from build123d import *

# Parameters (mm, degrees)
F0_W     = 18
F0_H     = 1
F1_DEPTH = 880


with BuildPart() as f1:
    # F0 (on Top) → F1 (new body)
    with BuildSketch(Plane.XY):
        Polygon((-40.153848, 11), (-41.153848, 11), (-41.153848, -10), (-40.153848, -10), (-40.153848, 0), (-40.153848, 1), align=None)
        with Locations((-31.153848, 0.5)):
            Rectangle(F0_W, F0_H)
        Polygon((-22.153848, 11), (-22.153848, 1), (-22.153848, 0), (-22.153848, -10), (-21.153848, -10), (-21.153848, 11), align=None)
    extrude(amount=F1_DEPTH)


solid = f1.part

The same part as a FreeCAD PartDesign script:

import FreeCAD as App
import Part
import Sketcher
Q = App.Units.Quantity


def add_polygon(sketch, points):
    """Adds a closed chain of lines whose ends are joined by coincident constraints."""
    first, n = sketch.GeometryCount, len(points)
    for a, b in zip(points, points[1:] + points[:1]):
        sketch.addGeometry(Part.LineSegment(App.Vector(*a, 0), App.Vector(*b, 0)), False)
    for i in range(n):
        sketch.addConstraint(Sketcher.Constraint("Coincident", first + i, 2, first + (i + 1) % n, 1))

doc = App.newDocument("Part")
params = doc.addObject("Spreadsheet::Sheet", "Params")
for row, (alias, value) in enumerate([
    ("sketch1_width", "1 mm"),
    ("sketch1_width2", "18 mm"),
    ("sketch1_height", "21 mm"),
    ("sketch1_height2", "10 mm"),
    ("pad1_length", "880 mm"),
], start=1):
    params.set(f"A{row}", alias)
    params.set(f"B{row}", "=" + value)
    params.setAlias(f"B{row}", alias)

body = doc.addObject("PartDesign::Body", "Body")

sketch1 = doc.addObject("Sketcher::SketchObject", "Sketch")
body.addObject(sketch1)
sketch1.AttachmentSupport = (doc.XY_Plane, [""])
sketch1.MapMode = "FlatFace"
add_polygon(sketch1, [(-40.2, 11), (-41.2, 11), (-41.2, -10), (-40.2, -10), (-40.2, 0), (-22.2, 0), (-22.2, -10), (-21.2, -10), (-21.2, 11), (-22.2, 11), (-22.2, 1), (-40.2, 1)])
sketch1.addConstraint([
    Sketcher.Constraint("Horizontal", 0),
    Sketcher.Constraint("Vertical", 1),
    Sketcher.Constraint("Horizontal", 2),
    Sketcher.Constraint("Vertical", 3),
    Sketcher.Constraint("Horizontal", 4),
    Sketcher.Constraint("Vertical", 5),
    Sketcher.Constraint("Horizontal", 6),
    Sketcher.Constraint("Vertical", 7),
    Sketcher.Constraint("Horizontal", 8),
    Sketcher.Constraint("Vertical", 9),
    Sketcher.Constraint("Horizontal", 10),
    Sketcher.Constraint("Vertical", 11),
    Sketcher.Constraint("PointOnObject", 3, 2, -1),
    Sketcher.Constraint("Horizontal", 2, 2, 5, 2),
    Sketcher.Constraint("Horizontal", 0, 2, 7, 2),
    Sketcher.Constraint("Vertical", 5, 2, 8, 2),
    Sketcher.Constraint("Vertical", 3, 2, 10, 2),
    Sketcher.Constraint("Equal", 2, 6),
    Sketcher.Constraint("Equal", 5, 9),
    Sketcher.Constraint("DistanceX", 0, 2, 0, 1, Q("1 mm")),
    Sketcher.Constraint("DistanceX", 4, 1, 4, 2, Q("18 mm")),
    Sketcher.Constraint("DistanceY", 1, 2, 1, 1, Q("21 mm")),
    Sketcher.Constraint("DistanceY", 3, 1, 3, 2, Q("10 mm")),
    Sketcher.Constraint("DistanceX", 0, 2, -1, 1, Q("41.153848 mm")),
])
sketch1.setExpression("Constraints[31]", "Params.sketch1_width")
sketch1.setExpression("Constraints[32]", "Params.sketch1_width2")
sketch1.setExpression("Constraints[33]", "Params.sketch1_height")
sketch1.setExpression("Constraints[34]", "Params.sketch1_height2")
pad1 = doc.addObject("PartDesign::Pad", "Pad")
body.addObject(pad1)
pad1.Profile = sketch1
pad1.setExpression("Length", "Params.pad1_length")

doc.recompute()
